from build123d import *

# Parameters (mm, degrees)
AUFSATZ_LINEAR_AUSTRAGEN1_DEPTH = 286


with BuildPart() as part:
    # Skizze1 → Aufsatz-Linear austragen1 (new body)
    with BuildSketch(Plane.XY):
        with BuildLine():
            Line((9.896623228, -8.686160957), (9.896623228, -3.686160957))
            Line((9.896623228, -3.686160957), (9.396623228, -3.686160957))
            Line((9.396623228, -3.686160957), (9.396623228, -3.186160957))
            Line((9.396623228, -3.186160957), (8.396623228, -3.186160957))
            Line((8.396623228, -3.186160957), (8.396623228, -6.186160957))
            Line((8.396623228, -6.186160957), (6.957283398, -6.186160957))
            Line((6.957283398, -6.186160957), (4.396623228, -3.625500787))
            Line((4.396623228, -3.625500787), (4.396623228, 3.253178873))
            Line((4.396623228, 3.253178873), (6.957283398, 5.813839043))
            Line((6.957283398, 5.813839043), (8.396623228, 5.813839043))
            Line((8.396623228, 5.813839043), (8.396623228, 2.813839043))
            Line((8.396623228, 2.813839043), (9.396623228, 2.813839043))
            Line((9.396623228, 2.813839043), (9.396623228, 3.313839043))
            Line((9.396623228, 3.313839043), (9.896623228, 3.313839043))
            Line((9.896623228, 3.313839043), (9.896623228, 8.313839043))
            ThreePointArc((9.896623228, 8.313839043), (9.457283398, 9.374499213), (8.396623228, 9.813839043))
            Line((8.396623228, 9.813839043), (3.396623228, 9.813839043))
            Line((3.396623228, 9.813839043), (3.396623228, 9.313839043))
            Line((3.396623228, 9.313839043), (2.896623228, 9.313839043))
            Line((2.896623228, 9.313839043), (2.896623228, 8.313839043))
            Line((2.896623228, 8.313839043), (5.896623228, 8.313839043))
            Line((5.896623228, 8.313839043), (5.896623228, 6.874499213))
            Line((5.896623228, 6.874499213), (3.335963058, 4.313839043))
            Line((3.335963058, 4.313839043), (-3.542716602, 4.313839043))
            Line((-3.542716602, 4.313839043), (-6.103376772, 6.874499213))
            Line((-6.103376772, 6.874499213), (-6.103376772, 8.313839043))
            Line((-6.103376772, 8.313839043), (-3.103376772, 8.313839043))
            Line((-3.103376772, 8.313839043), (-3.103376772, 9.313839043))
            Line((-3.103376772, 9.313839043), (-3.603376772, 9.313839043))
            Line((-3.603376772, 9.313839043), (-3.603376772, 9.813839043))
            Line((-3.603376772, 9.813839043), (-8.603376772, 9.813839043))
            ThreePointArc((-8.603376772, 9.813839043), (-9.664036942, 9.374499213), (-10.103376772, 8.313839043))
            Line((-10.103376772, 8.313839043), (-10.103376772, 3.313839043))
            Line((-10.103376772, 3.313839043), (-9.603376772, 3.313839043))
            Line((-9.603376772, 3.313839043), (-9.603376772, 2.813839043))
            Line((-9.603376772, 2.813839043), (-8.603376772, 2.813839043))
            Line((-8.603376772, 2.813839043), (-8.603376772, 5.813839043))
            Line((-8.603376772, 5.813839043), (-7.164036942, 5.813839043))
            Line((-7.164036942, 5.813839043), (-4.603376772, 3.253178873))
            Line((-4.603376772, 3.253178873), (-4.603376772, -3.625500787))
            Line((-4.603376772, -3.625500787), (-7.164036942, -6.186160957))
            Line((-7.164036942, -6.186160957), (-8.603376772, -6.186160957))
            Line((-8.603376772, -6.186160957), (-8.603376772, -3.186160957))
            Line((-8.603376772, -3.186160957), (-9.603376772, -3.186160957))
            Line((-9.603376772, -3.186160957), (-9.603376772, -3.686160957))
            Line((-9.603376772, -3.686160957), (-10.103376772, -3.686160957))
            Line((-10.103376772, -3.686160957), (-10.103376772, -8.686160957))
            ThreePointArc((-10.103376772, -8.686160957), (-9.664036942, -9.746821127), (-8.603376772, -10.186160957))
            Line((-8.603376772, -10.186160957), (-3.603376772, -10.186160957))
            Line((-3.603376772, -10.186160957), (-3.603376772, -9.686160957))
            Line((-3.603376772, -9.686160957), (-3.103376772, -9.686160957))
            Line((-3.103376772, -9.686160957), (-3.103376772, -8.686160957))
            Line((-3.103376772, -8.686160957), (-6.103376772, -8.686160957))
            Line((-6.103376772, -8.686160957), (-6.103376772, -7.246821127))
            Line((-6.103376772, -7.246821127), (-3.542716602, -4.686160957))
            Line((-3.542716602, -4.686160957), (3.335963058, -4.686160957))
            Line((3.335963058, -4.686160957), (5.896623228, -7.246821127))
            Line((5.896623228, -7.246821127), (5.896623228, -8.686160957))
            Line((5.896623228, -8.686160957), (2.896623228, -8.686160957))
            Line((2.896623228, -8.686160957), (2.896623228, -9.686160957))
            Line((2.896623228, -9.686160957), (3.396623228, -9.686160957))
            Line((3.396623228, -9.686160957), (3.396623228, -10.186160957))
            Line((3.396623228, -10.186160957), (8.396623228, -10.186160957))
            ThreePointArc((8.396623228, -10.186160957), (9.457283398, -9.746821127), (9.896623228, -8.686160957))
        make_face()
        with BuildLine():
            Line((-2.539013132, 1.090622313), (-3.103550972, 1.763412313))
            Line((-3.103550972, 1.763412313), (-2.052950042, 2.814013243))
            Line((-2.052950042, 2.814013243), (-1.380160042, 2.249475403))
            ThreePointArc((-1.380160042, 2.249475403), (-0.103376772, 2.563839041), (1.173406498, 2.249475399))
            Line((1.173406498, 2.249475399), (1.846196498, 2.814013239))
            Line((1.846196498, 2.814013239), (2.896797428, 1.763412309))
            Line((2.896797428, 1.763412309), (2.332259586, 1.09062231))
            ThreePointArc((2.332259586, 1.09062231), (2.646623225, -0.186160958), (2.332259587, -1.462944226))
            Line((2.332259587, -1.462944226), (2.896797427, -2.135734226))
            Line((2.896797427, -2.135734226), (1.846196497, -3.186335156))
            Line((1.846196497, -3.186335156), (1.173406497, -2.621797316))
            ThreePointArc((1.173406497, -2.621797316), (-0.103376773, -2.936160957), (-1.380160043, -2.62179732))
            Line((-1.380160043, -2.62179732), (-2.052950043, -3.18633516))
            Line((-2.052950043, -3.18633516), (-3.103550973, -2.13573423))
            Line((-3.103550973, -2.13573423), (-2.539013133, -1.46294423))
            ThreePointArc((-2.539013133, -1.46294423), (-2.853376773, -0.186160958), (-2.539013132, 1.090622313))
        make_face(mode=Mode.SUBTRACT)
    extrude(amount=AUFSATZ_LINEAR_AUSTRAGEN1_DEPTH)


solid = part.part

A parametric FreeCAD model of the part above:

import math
import FreeCAD as App
import Part
import Sketcher
from FreeCAD import Vector
Q = App.Units.Quantity

doc = App.newDocument("Part")
params = doc.addObject("Spreadsheet::Sheet", "Params")
for row, (alias, value) in enumerate([
    ("sketch1_radius", "1.5 mm"),
    ("sketch1_width", "1 mm"),
    ("sketch1_width2", "5 mm"),
    ("sketch1_width3", "3 mm"),
    ("sketch1_radius2", "2.75 mm"),
    ("pad1_length", "286 mm"),
], start=1):
    params.set(f"A{row}", alias)
    params.set(f"B{row}", "=" + value)
    params.setAlias(f"B{row}", alias)

body = doc.addObject("PartDesign::Body", "Body")

# Sketch on XY plane
sketch1 = doc.addObject("Sketcher::SketchObject", "Sketch")
body.addObject(sketch1)
sketch1.AttachmentSupport = (doc.XY_Plane, [""])
sketch1.MapMode = "FlatFace"
sketch1.addGeometry([
    Part.LineSegment(Vector(9.9, -8.7, 0), Vector(9.9, -3.7, 0)),  # 0
    Part.LineSegment(Vector(9.9, -3.7, 0), Vector(9.4, -3.7, 0)),  # 1
    Part.LineSegment(Vector(9.4, -3.7, 0), Vector(9.4, -3.2, 0)),  # 2
    Part.LineSegment(Vector(9.4, -3.2, 0), Vector(8.4, -3.2, 0)),  # 3
    Part.LineSegment(Vector(8.4, -3.2, 0), Vector(8.4, -6.2, 0)),  # 4
    Part.LineSegment(Vector(8.4, -6.2, 0), Vector(7, -6.2, 0)),  # 5
    Part.LineSegment(Vector(7, -6.2, 0), Vector(4.4, -3.6, 0)),  # 6
    Part.LineSegment(Vector(4.4, -3.6, 0), Vector(4.4, 3.3, 0)),  # 7
    Part.LineSegment(Vector(4.4, 3.3, 0), Vector(7, 5.8, 0)),  # 8
    Part.LineSegment(Vector(7, 5.8, 0), Vector(8.4, 5.8, 0)),  # 9
    Part.LineSegment(Vector(8.4, 5.8, 0), Vector(8.4, 2.8, 0)),  # 10
    Part.LineSegment(Vector(8.4, 2.8, 0), Vector(9.4, 2.8, 0)),  # 11
    Part.LineSegment(Vector(9.4, 2.8, 0), Vector(9.4, 3.3, 0)),  # 12
    Part.LineSegment(Vector(9.4, 3.3, 0), Vector(9.9, 3.3, 0)),  # 13
    Part.LineSegment(Vector(9.9, 3.3, 0), Vector(9.9, 8.3, 0)),  # 14
    Part.ArcOfCircle(Part.Circle(Vector(8.4, 8.3, 0), Vector(0, 0, 1), 1.5), math.radians(0), math.radians(90)),  # 15
    Part.LineSegment(Vector(8.4, 9.8, 0), Vector(3.4, 9.8, 0)),  # 16
    Part.LineSegment(Vector(3.4, 9.8, 0), Vector(3.4, 9.3, 0)),  # 17
    Part.LineSegment(Vector(3.4, 9.3, 0), Vector(2.9, 9.3, 0)),  # 18
    Part.LineSegment(Vector(2.9, 9.3, 0), Vector(2.9, 8.3, 0)),  # 19
    Part.LineSegment(Vector(2.9, 8.3, 0), Vector(5.9, 8.3, 0)),  # 20
    Part.LineSegment(Vector(5.9, 8.3, 0), Vector(5.9, 6.9, 0)),  # 21
    Part.LineSegment(Vector(5.9, 6.9, 0), Vector(3.3, 4.3, 0)),  # 22
    Part.LineSegment(Vector(3.3, 4.3, 0), Vector(-3.5, 4.3, 0)),  # 23
    Part.LineSegment(Vector(-3.5, 4.3, 0), Vector(-6.1, 6.9, 0)),  # 24
    Part.LineSegment(Vector(-6.1, 6.9, 0), Vector(-6.1, 8.3, 0)),  # 25
    Part.LineSegment(Vector(-6.1, 8.3, 0), Vector(-3.1, 8.3, 0)),  # 26
    Part.LineSegment(Vector(-3.1, 8.3, 0), Vector(-3.1, 9.3, 0)),  # 27
    Part.LineSegment(Vector(-3.1, 9.3, 0), Vector(-3.6, 9.3, 0)),  # 28
    Part.LineSegment(Vector(-3.6, 9.3, 0), Vector(-3.6, 9.8, 0)),  # 29
    Part.LineSegment(Vector(-3.6, 9.8, 0), Vector(-8.6, 9.8, 0)),  # 30
    Part.ArcOfCircle(Part.Circle(Vector(-8.6, 8.3, 0), Vector(0, 0, 1), 1.5), math.radians(90), math.radians(180)),  # 31
    Part.LineSegment(Vector(-10.1, 8.3, 0), Vector(-10.1, 3.3, 0)),  # 32
    Part.LineSegment(Vector(-10.1, 3.3, 0), Vector(-9.6, 3.3, 0)),  # 33
    Part.LineSegment(Vector(-9.6, 3.3, 0), Vector(-9.6, 2.8, 0)),  # 34
    Part.LineSegment(Vector(-9.6, 2.8, 0), Vector(-8.6, 2.8, 0)),  # 35
    Part.LineSegment(Vector(-8.6, 2.8, 0), Vector(-8.6, 5.8, 0)),  # 36
    Part.LineSegment(Vector(-8.6, 5.8, 0), Vector(-7.2, 5.8, 0)),  # 37
    Part.LineSegment(Vector(-7.2, 5.8, 0), Vector(-4.6, 3.3, 0)),  # 38
    Part.LineSegment(Vector(-4.6, 3.3, 0), Vector(-4.6, -3.6, 0)),  # 39
    Part.LineSegment(Vector(-4.6, -3.6, 0), Vector(-7.2, -6.2, 0)),  # 40
    Part.LineSegment(Vector(-7.2, -6.2, 0), Vector(-8.6, -6.2, 0)),  # 41
    Part.LineSegment(Vector(-8.6, -6.2, 0), Vector(-8.6, -3.2, 0)),  # 42
    Part.LineSegment(Vector(-8.6, -3.2, 0), Vector(-9.6, -3.2, 0)),  # 43
    Part.LineSegment(Vector(-9.6, -3.2, 0), Vector(-9.6, -3.7, 0)),  # 44
    Part.LineSegment(Vector(-9.6, -3.7, 0), Vector(-10.1, -3.7, 0)),  # 45
    Part.LineSegment(Vector(-10.1, -3.7, 0), Vector(-10.1, -8.7, 0)),  # 46
    Part.ArcOfCircle(Part.Circle(Vector(-8.6, -8.7, 0), Vector(0, 0, 1), 1.5), math.radians(-180), math.radians(-90)),  # 47
    Part.LineSegment(Vector(-8.6, -10.2, 0), Vector(-3.6, -10.2, 0)),  # 48
    Part.LineSegment(Vector(-3.6, -10.2, 0), Vector(-3.6, -9.7, 0)),  # 49
    Part.LineSegment(Vector(-3.6, -9.7, 0), Vector(-3.1, -9.7, 0)),  # 50
    Part.LineSegment(Vector(-3.1, -9.7, 0), Vector(-3.1, -8.7, 0)),  # 51
    Part.LineSegment(Vector(-3.1, -8.7, 0), Vector(-6.1, -8.7, 0)),  # 52
    Part.LineSegment(Vector(-6.1, -8.7, 0), Vector(-6.1, -7.2, 0)),  # 53
    Part.LineSegment(Vector(-6.1, -7.2, 0), Vector(-3.5, -4.7, 0)),  # 54
    Part.LineSegment(Vector(-3.5, -4.7, 0), Vector(3.3, -4.7, 0)),  # 55
    Part.LineSegment(Vector(3.3, -4.7, 0), Vector(5.9, -7.2, 0)),  # 56
    Part.LineSegment(Vector(5.9, -7.2, 0), Vector(5.9, -8.7, 0)),  # 57
    Part.LineSegment(Vector(5.9, -8.7, 0), Vector(2.9, -8.7, 0)),  # 58
    Part.LineSegment(Vector(2.9, -8.7, 0), Vector(2.9, -9.7, 0)),  # 59
    Part.LineSegment(Vector(2.9, -9.7, 0), Vector(3.4, -9.7, 0)),  # 60
    Part.LineSegment(Vector(3.4, -9.7, 0), Vector(3.4, -10.2, 0)),  # 61
    Part.LineSegment(Vector(3.4, -10.2, 0), Vector(8.4, -10.2, 0)),  # 62
    Part.ArcOfCircle(Part.Circle(Vector(8.4, -8.7, 0), Vector(0, 0, 1), 1.5), math.radians(-90), math.radians(0)),  # 63
    Part.ArcOfCircle(Part.Circle(Vector(-0.1, -0.2, 0), Vector(0, 0, 1), 2.7), math.radians(152), math.radians(208)),  # 64
    Part.LineSegment(Vector(-2.5, 1.1, 0), Vector(-3.1, 1.8, 0)),  # 65
    Part.LineSegment(Vector(-3.1, 1.8, 0), Vector(-2.1, 2.8, 0)),  # 66
    Part.LineSegment(Vector(-2.1, 2.8, 0), Vector(-1.4, 2.2, 0)),  # 67
    Part.ArcOfCircle(Part.Circle(Vector(-0.1, -0.2, 0), Vector(0, 0, 1), 2.7), math.radians(62), math.radians(118)),  # 68
    Part.LineSegment(Vector(1.2, 2.2, 0), Vector(1.8, 2.8, 0)),  # 69
    Part.LineSegment(Vector(1.8, 2.8, 0), Vector(2.9, 1.8, 0)),  # 70
    Part.LineSegment(Vector(2.9, 1.8, 0), Vector(2.3, 1.1, 0)),  # 71
    Part.ArcOfCircle(Part.Circle(Vector(-0.1, -0.2, 0), Vector(0, 0, 1), 2.7), math.radians(-28), math.radians(28)),  # 72
    Part.LineSegment(Vector(2.3, -1.5, 0), Vector(2.9, -2.1, 0)),  # 73
    Part.LineSegment(Vector(2.9, -2.1, 0), Vector(1.8, -3.2, 0)),  # 74
    Part.LineSegment(Vector(1.8, -3.2, 0), Vector(1.2, -2.6, 0)),  # 75
    Part.ArcOfCircle(Part.Circle(Vector(-0.1, -0.2, 0), Vector(0, 0, 1), 2.8), math.radians(-118), math.radians(-62)),  # 76
    Part.LineSegment(Vector(-1.4, -2.6, 0), Vector(-2.1, -3.2, 0)),  # 77
    Part.LineSegment(Vector(-2.1, -3.2, 0), Vector(-3.1, -2.1, 0)),  # 78
    Part.LineSegment(Vector(-3.1, -2.1, 0), Vector(-2.5, -1.5, 0)),  # 79
], False)
sketch1.addConstraint([
    Sketcher.Constraint("Coincident", 0, 2, 1, 1),
    Sketcher.Constraint("Coincident", 1, 2, 2, 1),
    Sketcher.Constraint("Coincident", 2, 2, 3, 1),
    Sketcher.Constraint("Coincident", 3, 2, 4, 1),
    Sketcher.Constraint("Coincident", 4, 2, 5, 1),
    Sketcher.Constraint("Coincident", 5, 2, 6, 1),
    Sketcher.Constraint("Coincident", 6, 2, 7, 1),
    Sketcher.Constraint("Coincident", 7, 2, 8, 1),
    Sketcher.Constraint("Coincident", 8, 2, 9, 1),
    Sketcher.Constraint("Coincident", 9, 2, 10, 1),
    Sketcher.Constraint("Coincident", 10, 2, 11, 1),
    Sketcher.Constraint("Coincident", 11, 2, 12, 1),
    Sketcher.Constraint("Coincident", 12, 2, 13, 1),
    Sketcher.Constraint("Coincident", 13, 2, 14, 1),
    Sketcher.Constraint("Tangent", 14, 2, 15, 1),
    Sketcher.Constraint("Tangent", 15, 2, 16, 1),
    Sketcher.Constraint("Coincident", 16, 2, 17, 1),
    Sketcher.Constraint("Coincident", 17, 2, 18, 1),
    Sketcher.Constraint("Coincident", 18, 2, 19, 1),
    Sketcher.Constraint("Coincident", 19, 2, 20, 1),
    Sketcher.Constraint("Coincident", 20, 2, 21, 1),
    Sketcher.Constraint("Coincident", 21, 2, 22, 1),
    Sketcher.Constraint("Coincident", 22, 2, 23, 1),
    Sketcher.Constraint("Coincident", 23, 2, 24, 1),
    Sketcher.Constraint("Coincident", 24, 2, 25, 1),
    Sketcher.Constraint("Coincident", 25, 2, 26, 1),
    Sketcher.Constraint("Coincident", 26, 2, 27, 1),
    Sketcher.Constraint("Coincident", 27, 2, 28, 1),
    Sketcher.Constraint("Coincident", 28, 2, 29, 1),
    Sketcher.Constraint("Coincident", 29, 2, 30, 1),
    Sketcher.Constraint("Tangent", 30, 2, 31, 1),
    Sketcher.Constraint("Tangent", 31, 2, 32, 1),
    Sketcher.Constraint("Coincident", 32, 2, 33, 1),
    Sketcher.Constraint("Coincident", 33, 2, 34, 1),
    Sketcher.Constraint("Coincident", 34, 2, 35, 1),
    Sketcher.Constraint("Coincident", 35, 2, 36, 1),
    Sketcher.Constraint("Coincident", 36, 2, 37, 1),
    Sketcher.Constraint("Coincident", 37, 2, 38, 1),
    Sketcher.Constraint("Coincident", 38, 2, 39, 1),
    Sketcher.Constraint("Coincident", 39, 2, 40, 1),
    Sketcher.Constraint("Coincident", 40, 2, 41, 1),
    Sketcher.Constraint("Coincident", 41, 2, 42, 1),
    Sketcher.Constraint("Coincident", 42, 2, 43, 1),
    Sketcher.Constraint("Coincident", 43, 2, 44, 1),
    Sketcher.Constraint("Coincident", 44, 2, 45, 1),
    Sketcher.Constraint("Coincident", 45, 2, 46, 1),
    Sketcher.Constraint("Tangent", 46, 2, 47, 1),
    Sketcher.Constraint("Tangent", 47, 2, 48, 1),
    Sketcher.Constraint("Coincident", 48, 2, 49, 1),
    Sketcher.Constraint("Coincident", 49, 2, 50, 1),
    Sketcher.Constraint("Coincident", 50, 2, 51, 1),
    Sketcher.Constraint("Coincident", 51, 2, 52, 1),
    Sketcher.Constraint("Coincident", 52, 2, 53, 1),
    Sketcher.Constraint("Coincident", 53, 2, 54, 1),
    Sketcher.Constraint("Coincident", 54, 2, 55, 1),
    Sketcher.Constraint("Coincident", 55, 2, 56, 1),
    Sketcher.Constraint("Coincident", 56, 2, 57, 1),
    Sketcher.Constraint("Coincident", 57, 2, 58, 1),
    Sketcher.Constraint("Coincident", 58, 2, 59, 1),
    Sketcher.Constraint("Coincident", 59, 2, 60, 1),
    Sketcher.Constraint("Coincident", 60, 2, 61, 1),
    Sketcher.Constraint("Coincident", 61, 2, 62, 1),
    Sketcher.Constraint("Tangent", 62, 2, 63, 1),
    Sketcher.Constraint("Tangent", 63, 2, 0, 1),
    Sketcher.Constraint("Coincident", 64, 1, 65, 1),
    Sketcher.Constraint("Coincident", 65, 2, 66, 1),
    Sketcher.Constraint("Coincident", 66, 2, 67, 1),
    Sketcher.Constraint("Coincident", 67, 2, 68, 2),
    Sketcher.Constraint("Coincident", 68, 1, 69, 1),
    Sketcher.Constraint("Coincident", 69, 2, 70, 1),
    Sketcher.Constraint("Coincident", 70, 2, 71, 1),
    Sketcher.Constraint("Coincident", 71, 2, 72, 2),
    Sketcher.Constraint("Coincident", 72, 1, 73, 1),
    Sketcher.Constraint("Coincident", 73, 2, 74, 1),
    Sketcher.Constraint("Coincident", 74, 2, 75, 1),
    Sketcher.Constraint("Coincident", 75, 2, 76, 2),
    Sketcher.Constraint("Coincident", 76, 1, 77, 1),
    Sketcher.Constraint("Coincident", 77, 2, 78, 1),
    Sketcher.Constraint("Coincident", 78, 2, 79, 1),
    Sketcher.Constraint("Coincident", 79, 2, 64, 2),
    Sketcher.Constraint("Vertical", 0),
    Sketcher.Constraint("Horizontal", 1),
    Sketcher.Constraint("Vertical", 2),
    Sketcher.Constraint("Horizontal", 3),
    Sketcher.Constraint("Vertical", 4),
    Sketcher.Constraint("Horizontal", 5),
    Sketcher.Constraint("Vertical", 7),
    Sketcher.Constraint("Horizontal", 9),
    Sketcher.Constraint("Vertical", 10),
    Sketcher.Constraint("Horizontal", 11),
    Sketcher.Constraint("Vertical", 12),
    Sketcher.Constraint("Horizontal", 13),
    Sketcher.Constraint("Vertical", 14),
    Sketcher.Constraint("Horizontal", 16),
    Sketcher.Constraint("Vertical", 17),
    Sketcher.Constraint("Horizontal", 18),
    Sketcher.Constraint("Vertical", 19),
    Sketcher.Constraint("Horizontal", 20),
    Sketcher.Constraint("Vertical", 21),
    Sketcher.Constraint("Horizontal", 23),
    Sketcher.Constraint("Vertical", 25),
    Sketcher.Constraint("Horizontal", 26),
    Sketcher.Constraint("Vertical", 27),
    Sketcher.Constraint("Horizontal", 28),
    Sketcher.Constraint("Vertical", 29),
    Sketcher.Constraint("Horizontal", 30),
    Sketcher.Constraint("Vertical", 32),
    Sketcher.Constraint("Horizontal", 33),
    Sketcher.Constraint("Vertical", 34),
    Sketcher.Constraint("Horizontal", 35),
    Sketcher.Constraint("Vertical", 36),
    Sketcher.Constraint("Horizontal", 37),
    Sketcher.Constraint("Vertical", 39),
    Sketcher.Constraint("Horizontal", 41),
    Sketcher.Constraint("Vertical", 42),
    Sketcher.Constraint("Horizontal", 43),
    Sketcher.Constraint("Vertical", 44),
    Sketcher.Constraint("Horizontal", 45),
    Sketcher.Constraint("Vertical", 46),
    Sketcher.Constraint("Horizontal", 48),
    Sketcher.Constraint("Vertical", 49),
    Sketcher.Constraint("Horizontal", 50),
    Sketcher.Constraint("Vertical", 51),
    Sketcher.Constraint("Horizontal", 52),
    Sketcher.Constraint("Vertical", 53),
    Sketcher.Constraint("Horizontal", 55),
    Sketcher.Constraint("Vertical", 57),
    Sketcher.Constraint("Horizontal", 58),
    Sketcher.Constraint("Vertical", 59),
    Sketcher.Constraint("Horizontal", 60),
    Sketcher.Constraint("Vertical", 61),
    Sketcher.Constraint("Horizontal", 62),
    Sketcher.Constraint("Coincident", 68, 3, 64, 3),
    Sketcher.Constraint("Coincident", 72, 3, 64, 3),
    Sketcher.Constraint("Coincident", 76, 3, 64, 3),
    Sketcher.Constraint("Equal", 15, 31),
    Sketcher.Constraint("Equal", 31, 47),
    Sketcher.Constraint("Equal", 47, 63),
    Sketcher.Constraint("Equal", 64, 68),
    Sketcher.Constraint("Equal", 68, 72),
    Sketcher.Constraint("Equal", 72, 76),
    Sketcher.Constraint("Perpendicular", 6, 8),
    Sketcher.Constraint("Parallel", 8, 22),
    Sketcher.Constraint("Perpendicular", 22, 24),
    Sketcher.Constraint("Parallel", 24, 38),
    Sketcher.Constraint("Perpendicular", 38, 40),
    Sketcher.Constraint("Parallel", 40, 54),
    Sketcher.Constraint("Perpendicular", 54, 56),
    Sketcher.Constraint("Perpendicular", 56, 66),
    Sketcher.Constraint("Perpendicular", 65, 69),
    Sketcher.Constraint("Perpendicular", 66, 70),
    Sketcher.Constraint("Perpendicular", 67, 71),
    Sketcher.Constraint("Perpendicular", 69, 73),
    Sketcher.Constraint("Perpendicular", 70, 74),
    Sketcher.Constraint("Perpendicular", 71, 75),
    Sketcher.Constraint("Perpendicular", 73, 77),
    Sketcher.Constraint("Perpendicular", 74, 78),
    Sketcher.Constraint("Perpendicular", 75, 79),
    Sketcher.Constraint("Horizontal", 15, 3, 31, 3),
    Sketcher.Constraint("Horizontal", 47, 3, 63, 3),
    Sketcher.Constraint("Horizontal", 14, 2, 19, 2),
    Sketcher.Constraint("Horizontal", 21, 2, 24, 2),
    Sketcher.Constraint("Horizontal", 20, 2, 25, 2),
    Sketcher.Constraint("Horizontal", 18, 2, 27, 2),
    Sketcher.Constraint("Horizontal", 13, 2, 32, 2),
    Sketcher.Constraint("Horizontal", 11, 2, 34, 2),
    Sketcher.Constraint("Horizontal", 9, 2, 36, 2),
    Sketcher.Constraint("Horizontal", 7, 2, 38, 2),
    Sketcher.Constraint("Horizontal", 6, 2, 39, 2),
    Sketcher.Constraint("Horizontal", 5, 2, 40, 2),
    Sketcher.Constraint("Horizontal", 3, 2, 42, 2),
    Sketcher.Constraint("Horizontal", 1, 2, 44, 2),
    Sketcher.Constraint("Horizontal", 46, 2, 51, 2),
    Sketcher.Constraint("Horizontal", 53, 2, 56, 2),
    Sketcher.Constraint("Horizontal", 52, 2, 57, 2),
    Sketcher.Constraint("Horizontal", 50, 2, 59, 2),
    Sketcher.Constraint("Horizontal", 67, 2, 68, 1),
    Sketcher.Constraint("Horizontal", 66, 2, 69, 2),
    Sketcher.Constraint("Horizontal", 65, 2, 70, 2),
    Sketcher.Constraint("Horizontal", 64, 1, 71, 2),
    Sketcher.Constraint("Horizontal", 75, 2, 76, 1),
    Sketcher.Constraint("Horizontal", 74, 2, 77, 2),
    Sketcher.Constraint("Horizontal", 73, 2, 78, 2),
    Sketcher.Constraint("Vertical", 31, 3, 47, 3),
    Sketcher.Constraint("Vertical", 15, 3, 63, 3),
    Sketcher.Constraint("Vertical", 63, 3, 3, 2),
    Sketcher.Constraint("Vertical", 5, 2, 8, 2),
    Sketcher.Constraint("Vertical", 4, 2, 9, 2),
    Sketcher.Constraint("Vertical", 2, 2, 11, 2),
    Sketcher.Constraint("Vertical", 30, 2, 35, 2),
    Sketcher.Constraint("Vertical", 37, 2, 40, 2),
    Sketcher.Constraint("Vertical", 36, 2, 41, 2),
    Sketcher.Constraint("Vertical", 34, 2, 43, 2),
    Sketcher.Constraint("Vertical", 29, 2, 48, 2),
    Sketcher.Constraint("Vertical", 27, 2, 50, 2),
    Sketcher.Constraint("Vertical", 25, 2, 52, 2),
    Sketcher.Constraint("Vertical", 23, 2, 54, 2),
    Sketcher.Constraint("Vertical", 22, 2, 55, 2),
    Sketcher.Constraint("Vertical", 19, 2, 58, 2),
    Sketcher.Constraint("Vertical", 17, 2, 60, 2),
    Sketcher.Constraint("Vertical", 71, 2, 72, 1),
    Sketcher.Constraint("Vertical", 70, 2, 73, 2),
    Sketcher.Constraint("Vertical", 69, 2, 74, 2),
    Sketcher.Constraint("Equal", 13, 18),
    Sketcher.Constraint("Equal", 20, 26),
    Sketcher.Constraint("Equal", 18, 28),
    Sketcher.Constraint("Equal", 16, 30),
    Sketcher.Constraint("Equal", 28, 33),
    Sketcher.Constraint("Equal", 9, 37),
    Sketcher.Constraint("Equal", 62, 0),
    Sketcher.Constraint("Equal", 60, 2),
    Sketcher.Constraint("Equal", 58, 4),
    Sketcher.Constraint("Equal", 55, 7),
    Sketcher.Constraint("Equal", 4, 10),
    Sketcher.Constraint("Equal", 2, 12),
    Sketcher.Constraint("Equal", 0, 14),
    Sketcher.Constraint("Equal", 12, 17),
    Sketcher.Constraint("Equal", 41, 21),
    Sketcher.Constraint("Equal", 44, 49),
    Sketcher.Constraint("Equal", 25, 53),
    Sketcher.Constraint("Equal", 8, 22),
    Sketcher.Constraint("Equal", 65, 67),
    Sketcher.Constraint("Radius", 15, Q("1.5 mm")),
    Sketcher.Constraint("DistanceX", 3, 2, 3, 1, Q("1 mm")),
    Sketcher.Constraint("DistanceX", 16, 2, 16, 1, Q("5 mm")),
    Sketcher.Constraint("DistanceX", 20, 1, 20, 2, Q("3 mm")),
    Sketcher.Constraint("Angle", 65, Q("130 deg")),
    Sketcher.Constraint("Radius", 64, Q("2.75 mm")),
    Sketcher.Constraint("DistanceX", 5, 2, 5, 1, Q("1.43934 mm")),
    Sketcher.Constraint("DistanceX", 23, 2, 23, 1, Q("6.87868 mm")),
    Sketcher.Constraint("DistanceY", 6, 2, -1, 1, Q("3.625501 mm")),
    Sketcher.Constraint("DistanceY", -1, 1, 21, 2, Q("6.874499 mm")),
    Sketcher.Constraint("DistanceY", 64, 3, -1, 1, Q("0.186161 mm")),
    Sketcher.Constraint("DistanceX", 65, 2, -1, 1, Q("3.103551 mm")),
    Sketcher.Constraint("DistanceX", 66, 2, -1, 1, Q("2.05295 mm")),
    Sketcher.Constraint("DistanceX", 67, 2, -1, 1, Q("1.38016 mm")),
    Sketcher.Constraint("DistanceX", -1, 1, 15, 3, Q("8.396623 mm")),
])
sketch1.setExpression("Constraints[222]", "Params.sketch1_radius")
sketch1.setExpression("Constraints[223]", "Params.sketch1_width")
sketch1.setExpression("Constraints[224]", "Params.sketch1_width2")
sketch1.setExpression("Constraints[225]", "Params.sketch1_width3")
sketch1.setExpression("Constraints[227]", "Params.sketch1_radius2")
pad1 = doc.addObject("PartDesign::Pad", "Pad")
body.addObject(pad1)
pad1.Profile = sketch1
pad1.setExpression("Length", "Params.pad1_length")

doc.recompute()
